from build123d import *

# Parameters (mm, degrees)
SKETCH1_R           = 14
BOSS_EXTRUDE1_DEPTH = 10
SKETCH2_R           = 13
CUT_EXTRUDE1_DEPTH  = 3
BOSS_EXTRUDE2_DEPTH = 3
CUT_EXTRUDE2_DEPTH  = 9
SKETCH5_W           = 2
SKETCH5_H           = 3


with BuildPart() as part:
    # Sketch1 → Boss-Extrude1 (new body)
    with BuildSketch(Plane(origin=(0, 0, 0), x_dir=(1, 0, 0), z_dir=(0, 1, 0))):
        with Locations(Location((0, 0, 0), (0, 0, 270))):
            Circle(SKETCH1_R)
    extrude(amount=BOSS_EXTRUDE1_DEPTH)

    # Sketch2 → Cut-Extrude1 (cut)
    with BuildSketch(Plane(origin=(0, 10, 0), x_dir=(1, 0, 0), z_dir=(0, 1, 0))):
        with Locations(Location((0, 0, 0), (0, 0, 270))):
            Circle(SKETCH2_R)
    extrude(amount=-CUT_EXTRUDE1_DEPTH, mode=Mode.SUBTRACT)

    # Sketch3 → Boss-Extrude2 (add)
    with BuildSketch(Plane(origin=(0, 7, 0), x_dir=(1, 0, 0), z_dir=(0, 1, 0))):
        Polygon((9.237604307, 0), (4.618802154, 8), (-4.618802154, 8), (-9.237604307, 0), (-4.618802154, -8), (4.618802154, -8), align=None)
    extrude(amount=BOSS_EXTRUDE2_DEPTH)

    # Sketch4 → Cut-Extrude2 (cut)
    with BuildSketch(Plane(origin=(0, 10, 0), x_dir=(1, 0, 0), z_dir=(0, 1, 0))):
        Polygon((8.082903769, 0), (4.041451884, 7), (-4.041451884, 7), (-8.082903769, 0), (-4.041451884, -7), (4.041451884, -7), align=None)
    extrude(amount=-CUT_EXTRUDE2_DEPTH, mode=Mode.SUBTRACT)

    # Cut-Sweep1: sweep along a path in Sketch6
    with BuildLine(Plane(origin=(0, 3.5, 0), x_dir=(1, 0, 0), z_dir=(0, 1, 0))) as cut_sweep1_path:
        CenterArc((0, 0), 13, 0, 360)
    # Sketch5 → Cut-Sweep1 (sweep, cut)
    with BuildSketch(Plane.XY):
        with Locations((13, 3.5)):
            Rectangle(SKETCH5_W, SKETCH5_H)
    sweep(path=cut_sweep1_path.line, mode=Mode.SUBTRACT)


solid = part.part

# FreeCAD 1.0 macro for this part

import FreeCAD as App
import Part
import Sketcher

V = App.Vector
Q = App.Units.Quantity


def add_polygon(sketch, points):
    """Adds a closed chain of lines whose ends are joined by coincident constraints."""
    first, n = sketch.GeometryCount, len(points)
    for a, b in zip(points, points[1:] + points[:1]):
        sketch.addGeometry(Part.LineSegment(App.Vector(*a, 0), App.Vector(*b, 0)), False)
    for i in range(n):
        sketch.addConstraint(Sketcher.Constraint("Coincident", first + i, 2, first + (i + 1) % n, 1))

doc = App.newDocument("Part")
body = doc.addObject("PartDesign::Body", "Body")

# Sketch on XZ plane
sketch1 = body.newObject("Sketcher::SketchObject", "Sketch")
sketch1.AttachmentSupport = (doc.getObject("XZ_Plane"), [""])
sketch1.MapMode = "FlatFace"
sketch1.addGeometry(Part.Circle(V(0, 0, 0), V(0, 0, 1), 14), False)
sketch1.addConstraint([
    Sketcher.Constraint("Coincident", 0, 3, -1, 1),
    Sketcher.Constraint("Diameter", 0, Q("28 mm")),
])
pad1 = body.newObject("PartDesign::Pad", "Pad")
pad1.Profile = sketch1
pad1.Length = 10
pad1.Reversed = True

# Sketch on XZ plane
sketch2 = body.newObject("Sketcher::SketchObject", "Sketch001")
sketch2.AttachmentSupport = (doc.getObject("XZ_Plane"), [""])
sketch2.MapMode = "FlatFace"
sketch2.AttachmentOffset = App.Placement(V(0, 0, -10), App.Rotation())
sketch2.addGeometry(Part.Circle(V(0, 0, 0), V(0, 0, 1), 13), False)
sketch2.addConstraint([
    Sketcher.Constraint("Coincident", 0, 3, -1, 1),
    Sketcher.Constraint("Diameter", 0, Q("26 mm")),
])
pocket1 = body.newObject("PartDesign::Pocket", "Pocket")
pocket1.Profile = sketch2
pocket1.Length = 3
pocket1.Reversed = True

# Sketch on XZ plane
sketch3 = body.newObject("Sketcher::SketchObject", "Sketch002")
sketch3.AttachmentSupport = (doc.getObject("XZ_Plane"), [""])
sketch3.MapMode = "FlatFace"
sketch3.AttachmentOffset = App.Placement(V(0, 0, -7), App.Rotation())
add_polygon(sketch3, [(9, 0), (5, -8), (-5, -8), (-9, 0), (-5, 8), (5, 8)])  # lines 0-5
sketch3.addConstraint([
    Sketcher.Constraint("Horizontal", 1),
    Sketcher.Constraint("Horizontal", 4),
    Sketcher.Constraint("Symmetric", 0, 2, 3, 2, -1, 1),
    Sketcher.Constraint("Symmetric", 2, 2, 5, 2, -1, 1),
    Sketcher.Constraint("PointOnObject", 2, 2, -1),
    Sketcher.Constraint("Parallel", 2, 5),
    Sketcher.Constraint("Vertical", 1, 2, 3, 2),
    Sketcher.Constraint("Angle", 0, Q("-120 deg")),
    Sketcher.Constraint("DistanceY", 0, 2, -1, 1, Q("8 mm")),
    Sketcher.Constraint("DistanceX", 1, 2, 1, 1, Q("9.237604 mm")),
])
pad2 = body.newObject("PartDesign::Pad", "Pad001")
pad2.Profile = sketch3
pad2.Length = 3
pad2.Reversed = True

# Sketch on XZ plane
sketch4 = body.newObject("Sketcher::SketchObject", "Sketch003")
sketch4.AttachmentSupport = (doc.getObject("XZ_Plane"), [""])
sketch4.MapMode = "FlatFace"
sketch4.AttachmentOffset = App.Placement(V(0, 0, -10), App.Rotation())
add_polygon(sketch4, [(8, 0), (4, -7), (-4, -7), (-8, 0), (-4, 7), (4, 7)])  # lines 0-5
sketch4.addConstraint([
    Sketcher.Constraint("Horizontal", 1),
    Sketcher.Constraint("Horizontal", 4),
    Sketcher.Constraint("Symmetric", 0, 2, 3, 2, -1, 1),
    Sketcher.Constraint("Symmetric", 2, 2, 5, 2, -1, 1),
    Sketcher.Constraint("PointOnObject", 2, 2, -1),
    Sketcher.Constraint("Parallel", 2, 5),
    Sketcher.Constraint("Vertical", 1, 2, 3, 2),
    Sketcher.Constraint("Angle", 0, Q("-120 deg")),
    Sketcher.Constraint("DistanceY", 0, 2, -1, 1, Q("7 mm")),
    Sketcher.Constraint("DistanceX", 1, 2, 1, 1, Q("8.082904 mm")),
])
pocket2 = body.newObject("PartDesign::Pocket", "Pocket001")
pocket2.Profile = sketch4
pocket2.Length = 9
pocket2.Reversed = True

# Sketch on XY plane
sketch5 = body.newObject("Sketcher::SketchObject", "Sketch004")
sketch5.AttachmentSupport = (doc.getObject("XY_Plane"), [""])
sketch5.MapMode = "FlatFace"
add_polygon(sketch5, [(12, 5), (12, 2), (14, 2), (14, 5)])  # lines 0-3
sketch5.addConstraint([
    Sketcher.Constraint("Vertical", 0),
    Sketcher.Constraint("Horizontal", 1),
    Sketcher.Constraint("Vertical", 2),
    Sketcher.Constraint("Horizontal", 3),
    Sketcher.Constraint("DistanceX", 1, 1, 1, 2, Q("2 mm")),
    Sketcher.Constraint("DistanceY", 0, 2, 0, 1, Q("3 mm")),
    Sketcher.Constraint("DistanceX", -1, 1, 0, 2, Q("12 mm")),
    Sketcher.Constraint("DistanceY", -1, 1, 0, 2, Q("2 mm")),
])

# Sketch on XZ plane
sketch6 = body.newObject("Sketcher::SketchObject", "Sketch005")
sketch6.AttachmentSupport = (doc.getObject("XZ_Plane"), [""])
sketch6.MapMode = "FlatFace"
sketch6.AttachmentOffset = App.Placement(V(0, 0, -3.5), App.Rotation())
sketch6.addGeometry(Part.Circle(V(0, 0, 0), V(0, 0, 1), 13), False)
sketch6.addConstraint([
    Sketcher.Constraint("Coincident", 0, 3, -1, 1),
    Sketcher.Constraint("Diameter", 0, Q("26 mm")),
])
doc.recompute()

subtractivepipe = body.newObject("PartDesign::SubtractivePipe", "SubtractivePipe")
subtractivepipe.Profile = sketch5
subtractivepipe.Spine = (sketch6, ["Edge1"])

doc.recompute()
